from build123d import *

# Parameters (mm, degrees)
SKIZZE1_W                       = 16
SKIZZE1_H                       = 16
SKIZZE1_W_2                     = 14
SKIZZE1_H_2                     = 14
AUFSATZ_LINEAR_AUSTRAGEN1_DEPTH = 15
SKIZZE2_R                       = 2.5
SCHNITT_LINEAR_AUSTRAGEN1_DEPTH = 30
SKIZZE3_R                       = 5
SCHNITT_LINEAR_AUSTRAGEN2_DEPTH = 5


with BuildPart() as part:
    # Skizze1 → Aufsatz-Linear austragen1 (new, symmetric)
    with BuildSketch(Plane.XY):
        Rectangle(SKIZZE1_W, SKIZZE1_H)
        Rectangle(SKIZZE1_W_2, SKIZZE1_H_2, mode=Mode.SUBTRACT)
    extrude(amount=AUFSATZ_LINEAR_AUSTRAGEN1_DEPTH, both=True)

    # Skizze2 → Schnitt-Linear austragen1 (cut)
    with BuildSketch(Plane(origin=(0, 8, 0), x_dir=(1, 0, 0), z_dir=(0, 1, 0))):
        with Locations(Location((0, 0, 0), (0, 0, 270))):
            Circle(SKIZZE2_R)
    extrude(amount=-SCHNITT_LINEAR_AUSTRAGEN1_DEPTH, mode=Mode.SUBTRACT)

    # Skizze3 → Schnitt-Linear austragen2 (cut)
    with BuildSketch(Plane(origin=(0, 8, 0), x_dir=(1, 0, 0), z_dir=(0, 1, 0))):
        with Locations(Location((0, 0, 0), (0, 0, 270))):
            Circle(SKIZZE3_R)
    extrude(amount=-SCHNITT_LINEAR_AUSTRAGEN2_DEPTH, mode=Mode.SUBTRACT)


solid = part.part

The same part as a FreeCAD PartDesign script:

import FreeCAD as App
import Part
import Sketcher

V = App.Vector
Q = App.Units.Quantity


def add_polygon(sketch, points):
    """Adds a closed chain of lines whose ends are joined by coincident constraints."""
    first, n = sketch.GeometryCount, len(points)
    for a, b in zip(points, points[1:] + points[:1]):
        sketch.addGeometry(Part.LineSegment(App.Vector(*a, 0), App.Vector(*b, 0)), False)
    for i in range(n):
        sketch.addConstraint(Sketcher.Constraint("Coincident", first + i, 2, first + (i + 1) % n, 1))

doc = App.newDocument("Part")
body = doc.addObject("PartDesign::Body", "Body")

sketch1 = body.newObject("Sketcher::SketchObject", "Sketch")
sketch1.AttachmentSupport = (doc.getObject("XY_Plane"), [""])
sketch1.MapMode = "FlatFace"
add_polygon(sketch1, [(-8, 8), (-8, -8), (8, -8), (8, 8)])
add_polygon(sketch1, [(7, -7), (-7, -7), (-7, 7), (7, 7)])
sketch1.addConstraint([
    Sketcher.Constraint("Vertical", 0),
    Sketcher.Constraint("Horizontal", 1),
    Sketcher.Constraint("Vertical", 2),
    Sketcher.Constraint("Horizontal", 3),
    Sketcher.Constraint("Horizontal", 4),
    Sketcher.Constraint("Vertical", 5),
    Sketcher.Constraint("Horizontal", 6),
    Sketcher.Constraint("Vertical", 7),
    Sketcher.Constraint("Symmetric", 0, 2, 2, 2, -1, 1),
    Sketcher.Constraint("Symmetric", 4, 2, 6, 2, -1, 1),
    Sketcher.Constraint("Equal", 3, 0),
    Sketcher.Constraint("Equal", 6, 5),
    Sketcher.Constraint("DistanceX", 1, 1, 1, 2, Q("16 mm")),
    Sketcher.Constraint("DistanceX", 4, 2, 4, 1, Q("14 mm")),
])
pad1 = body.newObject("PartDesign::Pad", "Pad")
pad1.Profile = sketch1
pad1.Length = 30
pad1.Midplane = True

sketch2 = body.newObject("Sketcher::SketchObject", "Sketch001")
sketch2.AttachmentSupport = (doc.getObject("XZ_Plane"), [""])
sketch2.MapMode = "FlatFace"
sketch2.AttachmentOffset = App.Placement(V(0, 0, -8), App.Rotation())
sketch2.addGeometry(Part.Circle(V(0, 0, 0), V(0, 0, 1), 2.5), False)
sketch2.addConstraint([
    Sketcher.Constraint("Coincident", 0, 3, -1, 1),
    Sketcher.Constraint("Diameter", 0, Q("5 mm")),
])
pocket1 = body.newObject("PartDesign::Pocket", "Pocket")
pocket1.Profile = sketch2
pocket1.Length = 30
pocket1.Reversed = True

sketch3 = body.newObject("Sketcher::SketchObject", "Sketch002")
sketch3.AttachmentSupport = (doc.getObject("XZ_Plane"), [""])
sketch3.MapMode = "FlatFace"
sketch3.AttachmentOffset = App.Placement(V(0, 0, -8), App.Rotation())
sketch3.addGeometry(Part.Circle(V(0, 0, 0), V(0, 0, 1), 5), False)
sketch3.addConstraint([
    Sketcher.Constraint("Coincident", 0, 3, -1, 1),
    Sketcher.Constraint("Diameter", 0, Q("10 mm")),
])
pocket2 = body.newObject("PartDesign::Pocket", "Pocket001")
pocket2.Profile = sketch3
pocket2.Length = 5
pocket2.Reversed = True

doc.recompute()
